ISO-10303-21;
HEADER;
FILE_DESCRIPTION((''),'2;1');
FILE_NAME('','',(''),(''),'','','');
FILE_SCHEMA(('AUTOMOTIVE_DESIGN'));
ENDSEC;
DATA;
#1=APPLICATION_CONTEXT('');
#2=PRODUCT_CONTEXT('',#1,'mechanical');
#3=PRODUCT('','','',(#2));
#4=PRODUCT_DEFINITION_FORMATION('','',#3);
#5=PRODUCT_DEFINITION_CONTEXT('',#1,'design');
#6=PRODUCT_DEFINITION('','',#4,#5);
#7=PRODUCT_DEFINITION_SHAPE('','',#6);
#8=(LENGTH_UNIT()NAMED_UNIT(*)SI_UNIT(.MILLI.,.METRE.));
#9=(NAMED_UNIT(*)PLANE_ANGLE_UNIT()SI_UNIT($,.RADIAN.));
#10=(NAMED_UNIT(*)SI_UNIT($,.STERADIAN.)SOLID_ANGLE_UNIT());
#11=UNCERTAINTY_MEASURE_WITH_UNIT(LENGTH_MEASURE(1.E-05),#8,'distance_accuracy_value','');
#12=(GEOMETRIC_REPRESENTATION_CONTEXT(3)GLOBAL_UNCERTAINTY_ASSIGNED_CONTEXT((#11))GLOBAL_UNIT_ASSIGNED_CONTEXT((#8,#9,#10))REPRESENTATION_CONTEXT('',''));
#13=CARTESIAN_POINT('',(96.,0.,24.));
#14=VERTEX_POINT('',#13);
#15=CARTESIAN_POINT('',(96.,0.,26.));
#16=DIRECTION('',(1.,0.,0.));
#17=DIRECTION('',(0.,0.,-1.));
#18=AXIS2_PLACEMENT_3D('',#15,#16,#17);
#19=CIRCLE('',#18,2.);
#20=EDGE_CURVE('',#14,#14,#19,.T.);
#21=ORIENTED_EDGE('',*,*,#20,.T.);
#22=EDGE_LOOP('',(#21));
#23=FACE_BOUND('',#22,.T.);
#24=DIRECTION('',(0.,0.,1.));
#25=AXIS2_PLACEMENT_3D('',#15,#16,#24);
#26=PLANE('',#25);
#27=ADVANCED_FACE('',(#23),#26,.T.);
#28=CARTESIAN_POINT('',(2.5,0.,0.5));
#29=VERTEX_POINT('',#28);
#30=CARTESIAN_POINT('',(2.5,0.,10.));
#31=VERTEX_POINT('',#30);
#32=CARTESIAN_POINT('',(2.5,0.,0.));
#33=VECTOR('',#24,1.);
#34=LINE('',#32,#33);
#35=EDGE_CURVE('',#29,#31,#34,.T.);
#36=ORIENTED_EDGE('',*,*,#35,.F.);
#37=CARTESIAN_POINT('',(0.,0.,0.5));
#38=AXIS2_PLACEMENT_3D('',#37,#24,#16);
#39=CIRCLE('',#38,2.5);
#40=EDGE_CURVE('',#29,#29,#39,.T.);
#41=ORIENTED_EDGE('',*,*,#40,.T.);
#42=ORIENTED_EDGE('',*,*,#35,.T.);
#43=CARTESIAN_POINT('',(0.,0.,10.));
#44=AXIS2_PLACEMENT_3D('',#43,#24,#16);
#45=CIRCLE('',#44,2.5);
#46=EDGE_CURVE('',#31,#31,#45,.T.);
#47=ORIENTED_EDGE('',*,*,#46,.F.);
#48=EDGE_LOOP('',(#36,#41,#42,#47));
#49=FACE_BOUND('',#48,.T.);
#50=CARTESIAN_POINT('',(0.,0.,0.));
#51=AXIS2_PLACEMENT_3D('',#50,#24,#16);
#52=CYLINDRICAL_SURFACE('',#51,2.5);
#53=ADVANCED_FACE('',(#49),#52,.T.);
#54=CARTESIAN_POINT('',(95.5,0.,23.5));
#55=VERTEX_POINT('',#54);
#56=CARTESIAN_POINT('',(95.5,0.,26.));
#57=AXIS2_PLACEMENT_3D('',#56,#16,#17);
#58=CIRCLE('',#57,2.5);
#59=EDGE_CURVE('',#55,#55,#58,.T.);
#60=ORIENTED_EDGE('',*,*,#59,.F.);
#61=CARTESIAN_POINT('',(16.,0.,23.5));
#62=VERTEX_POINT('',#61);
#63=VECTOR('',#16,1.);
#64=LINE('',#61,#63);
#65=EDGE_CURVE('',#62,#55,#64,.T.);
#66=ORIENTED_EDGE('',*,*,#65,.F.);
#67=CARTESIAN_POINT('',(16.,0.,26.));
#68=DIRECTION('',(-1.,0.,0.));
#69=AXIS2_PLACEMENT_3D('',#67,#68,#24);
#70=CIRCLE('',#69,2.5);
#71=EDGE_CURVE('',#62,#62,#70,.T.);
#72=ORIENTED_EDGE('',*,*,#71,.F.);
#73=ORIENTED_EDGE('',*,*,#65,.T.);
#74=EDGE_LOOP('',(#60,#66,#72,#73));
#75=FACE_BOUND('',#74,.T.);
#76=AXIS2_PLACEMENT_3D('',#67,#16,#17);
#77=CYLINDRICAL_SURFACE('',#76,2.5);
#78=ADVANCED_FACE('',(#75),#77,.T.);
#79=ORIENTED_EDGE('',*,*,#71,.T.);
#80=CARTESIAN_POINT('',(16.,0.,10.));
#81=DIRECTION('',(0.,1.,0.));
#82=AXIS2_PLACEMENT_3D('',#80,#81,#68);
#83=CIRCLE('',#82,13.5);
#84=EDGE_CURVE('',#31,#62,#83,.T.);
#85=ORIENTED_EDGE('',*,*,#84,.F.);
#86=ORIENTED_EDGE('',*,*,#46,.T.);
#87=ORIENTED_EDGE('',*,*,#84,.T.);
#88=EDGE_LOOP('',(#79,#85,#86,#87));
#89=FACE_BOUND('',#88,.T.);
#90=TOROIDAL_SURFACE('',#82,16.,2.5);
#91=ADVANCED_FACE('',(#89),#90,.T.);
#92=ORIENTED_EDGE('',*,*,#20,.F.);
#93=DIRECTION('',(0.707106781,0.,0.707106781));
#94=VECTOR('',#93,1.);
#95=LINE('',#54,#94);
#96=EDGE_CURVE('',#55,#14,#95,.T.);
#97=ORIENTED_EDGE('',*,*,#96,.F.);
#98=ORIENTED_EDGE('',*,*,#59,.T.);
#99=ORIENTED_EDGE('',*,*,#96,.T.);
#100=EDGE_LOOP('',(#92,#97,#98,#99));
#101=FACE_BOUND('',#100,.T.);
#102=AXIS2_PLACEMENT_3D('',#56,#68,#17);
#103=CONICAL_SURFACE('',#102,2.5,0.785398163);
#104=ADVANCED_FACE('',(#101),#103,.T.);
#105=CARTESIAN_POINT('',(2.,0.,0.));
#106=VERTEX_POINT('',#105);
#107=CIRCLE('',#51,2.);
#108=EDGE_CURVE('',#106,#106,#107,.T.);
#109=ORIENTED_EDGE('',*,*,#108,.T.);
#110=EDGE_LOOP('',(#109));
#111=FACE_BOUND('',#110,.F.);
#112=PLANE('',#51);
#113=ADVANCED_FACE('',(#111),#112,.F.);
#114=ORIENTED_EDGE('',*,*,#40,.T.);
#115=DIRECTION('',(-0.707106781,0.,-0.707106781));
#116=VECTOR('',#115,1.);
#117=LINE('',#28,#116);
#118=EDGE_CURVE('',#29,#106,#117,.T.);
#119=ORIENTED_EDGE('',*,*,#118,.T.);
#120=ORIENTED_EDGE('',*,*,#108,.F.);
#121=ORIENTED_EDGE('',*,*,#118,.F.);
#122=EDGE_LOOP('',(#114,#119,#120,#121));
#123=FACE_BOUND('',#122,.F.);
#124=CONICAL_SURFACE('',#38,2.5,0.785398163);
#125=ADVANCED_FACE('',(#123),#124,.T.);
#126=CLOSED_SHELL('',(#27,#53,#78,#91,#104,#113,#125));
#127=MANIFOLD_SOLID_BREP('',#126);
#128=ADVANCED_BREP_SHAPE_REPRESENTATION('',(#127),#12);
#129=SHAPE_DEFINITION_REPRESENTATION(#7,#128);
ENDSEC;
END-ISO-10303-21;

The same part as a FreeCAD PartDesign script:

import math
import FreeCAD as App
import Part
import Sketcher


def edges_at(feature, points):
    """Names of the edges that pass closest to the given points."""
    edges = feature.Shape.Edges
    near = lambda p: min(range(len(edges)), key=lambda i: edges[i].distToShape(Part.Vertex(*p))[0])
    return sorted({f"Edge{near(p) + 1}" for p in points})

doc = App.newDocument("Part")
body = doc.addObject("PartDesign::Body", "Body")

# Sketch on XY plane
sketch1 = body.newObject("Sketcher::SketchObject", "Sketch")
sketch1.AttachmentSupport = (doc.getObject("XY_Plane"), [""])
sketch1.MapMode = "FlatFace"
sketch1.addGeometry(Part.Circle(App.Vector(0, 0, 0), App.Vector(0, 0, 1), 2.5), False)
sketch1.addConstraint([
    Sketcher.Constraint("Coincident", 0, 3, -1, 1),
    Sketcher.Constraint("Diameter", 0, 5.0),
])

# Sketch on XZ plane
sketch2 = body.newObject("Sketcher::SketchObject", "Sketch001")
sketch2.AttachmentSupport = (doc.getObject("XZ_Plane"), [""])
sketch2.MapMode = "FlatFace"
sketch2.addGeometry([
    Part.LineSegment(App.Vector(0, 0, 0), App.Vector(0, 10, 0)),
    Part.ArcOfCircle(Part.Circle(App.Vector(16, 10, 0), App.Vector(0, 0, 1), 16), math.radians(90), math.radians(180)),
    Part.LineSegment(App.Vector(16, 26, 0), App.Vector(96, 26, 0)),
], False)
sketch2.addConstraint([
    Sketcher.Constraint("Tangent", 0, 2, 1, 2),
    Sketcher.Constraint("Tangent", 1, 1, 2, 1),
    Sketcher.Constraint("Vertical", 0),
    Sketcher.Constraint("Horizontal", 2),
    Sketcher.Constraint("Coincident", 0, 1, -1, 1),
    Sketcher.Constraint("Radius", 1, 16.0),
    Sketcher.Constraint("DistanceX", 2, 1, 2, 2, 80.0),
    Sketcher.Constraint("DistanceY", 0, 1, 0, 2, 10.0),
])
doc.recompute()

additivepipe = body.newObject("PartDesign::AdditivePipe", "AdditivePipe")
additivepipe.Profile = sketch1
additivepipe.Spine = (sketch2, ["Edge1", "Edge2", "Edge3"])
doc.recompute()

chamfer = body.newObject("PartDesign::Chamfer", "Chamfer")
chamfer.Base = (additivepipe, edges_at(additivepipe, [(-2.5, 0, 0), (96, 0, 28.5)]))
chamfer.ChamferType = "Two distances"
chamfer.Size = 0.5
chamfer.Size2 = 0.5

doc.recompute()
